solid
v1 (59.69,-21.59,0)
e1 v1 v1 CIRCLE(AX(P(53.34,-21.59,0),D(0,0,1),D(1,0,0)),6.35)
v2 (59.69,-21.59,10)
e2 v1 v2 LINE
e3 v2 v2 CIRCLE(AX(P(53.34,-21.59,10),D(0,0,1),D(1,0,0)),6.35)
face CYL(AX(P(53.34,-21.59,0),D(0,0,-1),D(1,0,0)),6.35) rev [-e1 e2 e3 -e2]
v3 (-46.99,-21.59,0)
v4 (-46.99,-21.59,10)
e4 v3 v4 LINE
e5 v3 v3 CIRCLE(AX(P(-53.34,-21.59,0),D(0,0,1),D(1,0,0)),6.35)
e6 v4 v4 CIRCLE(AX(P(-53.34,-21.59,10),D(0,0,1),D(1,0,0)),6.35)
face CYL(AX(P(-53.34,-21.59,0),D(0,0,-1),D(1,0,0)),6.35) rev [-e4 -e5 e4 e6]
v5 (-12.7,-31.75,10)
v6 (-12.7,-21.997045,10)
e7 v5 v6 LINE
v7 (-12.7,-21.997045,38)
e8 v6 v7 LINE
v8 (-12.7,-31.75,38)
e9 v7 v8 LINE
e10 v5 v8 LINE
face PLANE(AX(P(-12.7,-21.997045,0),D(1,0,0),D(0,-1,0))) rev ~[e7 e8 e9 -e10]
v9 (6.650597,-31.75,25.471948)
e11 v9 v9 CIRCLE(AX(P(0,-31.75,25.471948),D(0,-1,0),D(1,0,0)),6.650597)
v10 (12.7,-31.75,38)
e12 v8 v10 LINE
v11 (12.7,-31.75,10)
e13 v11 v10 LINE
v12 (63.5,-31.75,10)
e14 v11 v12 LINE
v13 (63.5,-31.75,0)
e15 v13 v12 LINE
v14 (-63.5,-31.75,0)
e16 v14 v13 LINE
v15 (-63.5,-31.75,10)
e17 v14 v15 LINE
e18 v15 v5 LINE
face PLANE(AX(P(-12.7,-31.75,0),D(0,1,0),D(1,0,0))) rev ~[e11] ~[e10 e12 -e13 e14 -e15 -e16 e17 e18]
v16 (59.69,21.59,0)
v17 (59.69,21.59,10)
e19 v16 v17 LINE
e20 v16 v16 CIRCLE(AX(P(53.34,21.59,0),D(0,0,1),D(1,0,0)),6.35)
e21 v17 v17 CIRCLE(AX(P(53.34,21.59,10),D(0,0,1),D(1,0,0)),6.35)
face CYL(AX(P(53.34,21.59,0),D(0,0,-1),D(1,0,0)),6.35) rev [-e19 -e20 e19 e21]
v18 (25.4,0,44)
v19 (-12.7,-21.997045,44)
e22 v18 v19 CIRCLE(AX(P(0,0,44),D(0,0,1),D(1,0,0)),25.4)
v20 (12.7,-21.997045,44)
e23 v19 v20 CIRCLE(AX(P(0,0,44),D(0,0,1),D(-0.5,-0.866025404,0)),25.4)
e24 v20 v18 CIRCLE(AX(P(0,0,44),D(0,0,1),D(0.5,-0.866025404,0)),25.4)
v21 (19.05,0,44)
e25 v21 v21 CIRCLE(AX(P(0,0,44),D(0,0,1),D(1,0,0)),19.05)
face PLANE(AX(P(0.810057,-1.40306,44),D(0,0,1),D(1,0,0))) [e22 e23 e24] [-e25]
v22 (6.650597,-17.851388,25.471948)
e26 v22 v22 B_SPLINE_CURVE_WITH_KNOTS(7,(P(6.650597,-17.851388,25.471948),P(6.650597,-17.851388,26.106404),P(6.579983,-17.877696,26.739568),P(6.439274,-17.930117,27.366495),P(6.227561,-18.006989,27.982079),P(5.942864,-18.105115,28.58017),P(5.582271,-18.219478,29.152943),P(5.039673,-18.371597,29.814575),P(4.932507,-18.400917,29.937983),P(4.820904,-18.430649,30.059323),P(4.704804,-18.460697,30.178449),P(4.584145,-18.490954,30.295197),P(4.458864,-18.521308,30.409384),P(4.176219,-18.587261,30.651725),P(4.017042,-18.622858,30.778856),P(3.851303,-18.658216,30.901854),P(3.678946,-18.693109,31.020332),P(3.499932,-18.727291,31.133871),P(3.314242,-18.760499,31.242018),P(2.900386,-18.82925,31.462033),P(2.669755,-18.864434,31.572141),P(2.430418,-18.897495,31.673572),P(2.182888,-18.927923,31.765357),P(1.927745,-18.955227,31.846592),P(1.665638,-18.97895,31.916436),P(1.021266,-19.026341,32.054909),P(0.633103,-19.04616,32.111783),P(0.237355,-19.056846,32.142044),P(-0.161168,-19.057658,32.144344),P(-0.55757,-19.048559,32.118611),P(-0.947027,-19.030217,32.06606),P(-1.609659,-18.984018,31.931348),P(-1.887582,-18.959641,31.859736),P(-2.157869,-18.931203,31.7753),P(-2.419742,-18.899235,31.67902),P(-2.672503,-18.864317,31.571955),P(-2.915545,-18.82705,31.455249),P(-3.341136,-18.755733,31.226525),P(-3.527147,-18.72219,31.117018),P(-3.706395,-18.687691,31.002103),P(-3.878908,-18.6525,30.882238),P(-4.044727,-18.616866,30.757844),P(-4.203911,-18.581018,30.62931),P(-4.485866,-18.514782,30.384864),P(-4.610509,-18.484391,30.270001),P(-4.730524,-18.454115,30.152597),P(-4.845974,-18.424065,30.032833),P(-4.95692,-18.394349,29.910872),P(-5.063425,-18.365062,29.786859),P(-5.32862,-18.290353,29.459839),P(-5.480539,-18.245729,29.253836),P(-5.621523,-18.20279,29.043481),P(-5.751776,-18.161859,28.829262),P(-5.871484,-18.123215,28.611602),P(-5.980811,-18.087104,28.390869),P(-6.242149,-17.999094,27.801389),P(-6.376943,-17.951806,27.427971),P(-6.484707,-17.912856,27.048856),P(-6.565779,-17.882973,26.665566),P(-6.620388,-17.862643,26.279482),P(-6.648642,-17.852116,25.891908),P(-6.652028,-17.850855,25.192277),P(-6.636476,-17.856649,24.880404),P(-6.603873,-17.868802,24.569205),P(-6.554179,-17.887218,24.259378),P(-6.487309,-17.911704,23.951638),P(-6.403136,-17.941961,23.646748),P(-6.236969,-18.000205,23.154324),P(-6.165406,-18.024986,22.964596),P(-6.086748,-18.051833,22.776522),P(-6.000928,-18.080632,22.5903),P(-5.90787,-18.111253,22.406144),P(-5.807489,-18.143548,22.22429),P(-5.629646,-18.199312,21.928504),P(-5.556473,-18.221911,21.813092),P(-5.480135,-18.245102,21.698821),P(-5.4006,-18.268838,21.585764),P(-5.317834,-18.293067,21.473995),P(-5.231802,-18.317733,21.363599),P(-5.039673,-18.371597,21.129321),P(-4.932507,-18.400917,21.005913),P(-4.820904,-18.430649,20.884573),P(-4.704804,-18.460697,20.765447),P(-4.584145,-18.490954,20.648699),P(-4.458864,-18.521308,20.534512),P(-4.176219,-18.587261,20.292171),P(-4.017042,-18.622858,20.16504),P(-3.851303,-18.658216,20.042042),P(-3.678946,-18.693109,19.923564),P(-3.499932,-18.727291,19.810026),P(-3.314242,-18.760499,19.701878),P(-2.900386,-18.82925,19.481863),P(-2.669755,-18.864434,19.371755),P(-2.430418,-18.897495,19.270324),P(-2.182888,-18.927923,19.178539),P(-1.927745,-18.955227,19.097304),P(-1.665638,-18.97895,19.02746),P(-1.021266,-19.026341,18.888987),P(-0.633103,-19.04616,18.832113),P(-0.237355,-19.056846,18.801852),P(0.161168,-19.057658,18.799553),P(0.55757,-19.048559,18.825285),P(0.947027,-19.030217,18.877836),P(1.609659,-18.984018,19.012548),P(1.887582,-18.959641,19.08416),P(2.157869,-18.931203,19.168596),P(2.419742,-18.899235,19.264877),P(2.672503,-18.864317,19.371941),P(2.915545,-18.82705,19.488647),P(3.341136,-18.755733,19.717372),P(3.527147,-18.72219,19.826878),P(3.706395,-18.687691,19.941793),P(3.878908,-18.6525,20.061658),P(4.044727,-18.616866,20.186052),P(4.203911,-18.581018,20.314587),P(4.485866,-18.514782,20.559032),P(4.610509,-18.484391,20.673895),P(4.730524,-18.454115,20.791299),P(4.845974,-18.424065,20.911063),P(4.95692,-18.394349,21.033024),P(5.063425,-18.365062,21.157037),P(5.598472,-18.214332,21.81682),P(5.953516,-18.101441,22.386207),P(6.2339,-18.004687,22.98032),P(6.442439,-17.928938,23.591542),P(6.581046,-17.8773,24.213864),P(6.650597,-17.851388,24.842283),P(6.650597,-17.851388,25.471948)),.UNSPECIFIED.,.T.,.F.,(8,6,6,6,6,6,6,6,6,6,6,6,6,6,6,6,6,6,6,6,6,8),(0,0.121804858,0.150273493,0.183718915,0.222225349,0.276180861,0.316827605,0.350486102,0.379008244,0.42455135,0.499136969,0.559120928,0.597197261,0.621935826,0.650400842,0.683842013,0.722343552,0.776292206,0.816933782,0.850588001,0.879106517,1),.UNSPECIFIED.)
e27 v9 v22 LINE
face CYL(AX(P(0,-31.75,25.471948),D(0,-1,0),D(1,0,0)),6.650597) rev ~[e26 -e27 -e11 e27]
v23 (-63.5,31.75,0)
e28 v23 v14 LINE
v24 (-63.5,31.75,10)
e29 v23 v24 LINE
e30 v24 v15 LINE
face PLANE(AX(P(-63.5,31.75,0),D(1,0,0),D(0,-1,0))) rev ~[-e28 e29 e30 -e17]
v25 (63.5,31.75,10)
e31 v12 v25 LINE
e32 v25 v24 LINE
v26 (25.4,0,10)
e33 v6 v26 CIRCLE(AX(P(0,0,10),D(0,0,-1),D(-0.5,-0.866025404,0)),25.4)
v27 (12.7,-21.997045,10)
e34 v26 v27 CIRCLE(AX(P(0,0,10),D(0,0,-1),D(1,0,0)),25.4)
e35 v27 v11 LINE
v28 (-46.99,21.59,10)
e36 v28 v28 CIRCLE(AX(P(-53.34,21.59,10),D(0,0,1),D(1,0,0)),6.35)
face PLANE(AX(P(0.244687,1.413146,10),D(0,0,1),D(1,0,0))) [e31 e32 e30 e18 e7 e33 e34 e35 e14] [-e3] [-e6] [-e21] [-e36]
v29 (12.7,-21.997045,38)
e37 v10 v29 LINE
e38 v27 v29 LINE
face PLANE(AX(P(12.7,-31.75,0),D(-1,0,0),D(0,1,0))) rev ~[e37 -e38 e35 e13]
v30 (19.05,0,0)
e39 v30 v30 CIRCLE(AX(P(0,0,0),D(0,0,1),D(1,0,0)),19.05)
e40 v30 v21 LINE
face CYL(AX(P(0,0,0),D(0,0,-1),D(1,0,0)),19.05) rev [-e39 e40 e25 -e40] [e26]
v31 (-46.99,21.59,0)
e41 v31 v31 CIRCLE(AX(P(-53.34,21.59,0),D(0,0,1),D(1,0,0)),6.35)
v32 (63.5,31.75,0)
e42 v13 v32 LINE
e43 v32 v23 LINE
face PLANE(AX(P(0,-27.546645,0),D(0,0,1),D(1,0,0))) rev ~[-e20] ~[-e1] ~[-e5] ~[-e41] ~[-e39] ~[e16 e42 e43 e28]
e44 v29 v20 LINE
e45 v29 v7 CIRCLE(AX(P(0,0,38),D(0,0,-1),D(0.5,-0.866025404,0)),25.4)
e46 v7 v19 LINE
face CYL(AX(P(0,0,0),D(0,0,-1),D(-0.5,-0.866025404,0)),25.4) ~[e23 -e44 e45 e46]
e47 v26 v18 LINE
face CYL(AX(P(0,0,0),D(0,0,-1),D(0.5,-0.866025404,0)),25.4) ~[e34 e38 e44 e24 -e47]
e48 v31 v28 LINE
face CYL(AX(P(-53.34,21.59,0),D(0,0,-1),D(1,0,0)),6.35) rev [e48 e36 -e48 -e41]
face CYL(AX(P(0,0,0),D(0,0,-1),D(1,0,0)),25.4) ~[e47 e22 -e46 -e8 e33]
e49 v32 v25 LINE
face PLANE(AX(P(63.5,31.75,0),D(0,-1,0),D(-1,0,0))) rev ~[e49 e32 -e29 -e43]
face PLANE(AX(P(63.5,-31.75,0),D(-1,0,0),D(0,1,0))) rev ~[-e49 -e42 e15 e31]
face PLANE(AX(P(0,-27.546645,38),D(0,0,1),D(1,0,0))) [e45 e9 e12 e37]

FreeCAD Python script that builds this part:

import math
import FreeCAD as App
import Part
import Sketcher
from FreeCAD import Vector
Q = App.Units.Quantity

doc = App.newDocument("Part")
params = doc.addObject("Spreadsheet::Sheet", "Params")
for row, (alias, value) in enumerate([
    ("sketch1_radius", "1 in"),
    ("sketch1_diameter", "0.5 in"),
    ("sketch1_width", "5 in"),
    ("sketch1_width2", "2 in"),
    ("sketch1_height", "2.5 in"),
    ("pad1_length", "10 mm"),
    ("sketch2_radius", "1 in"),
    ("sketch2_diameter", "1.5 in"),
    ("pad2_length", "44 mm"),
    ("sketch3_radius", "1 in"),
    ("sketch3_width", "1 in"),
    ("pad3_length", "38 mm"),
    ("pocket1_length", "14.898612 mm"),
], start=1):
    params.set(f"A{row}", alias)
    params.set(f"B{row}", "=" + value)
    params.setAlias(f"B{row}", alias)

body = doc.addObject("PartDesign::Body", "Body")

sketch1 = body.newObject("Sketcher::SketchObject", "Sketch")
sketch1.AttachmentSupport = (doc.getObject("XY_Plane"), [""])
sketch1.MapMode = "FlatFace"
sketch1.addGeometry(Part.LineSegment(Vector(63.5, 31.75, 0), Vector(-63.5, 31.75, 0)), False)
sketch1.addGeometry(Part.LineSegment(Vector(-63.5, 31.75, 0), Vector(-63.5, -31.75, 0)), False)
sketch1.addGeometry(Part.LineSegment(Vector(-63.5, -31.75, 0), Vector(-12.7, -31.75, 0)), False)
sketch1.addGeometry(Part.LineSegment(Vector(-12.7, -31.75, 0), Vector(-12.7, -21.997045, 0)), False)
sketch1.addGeometry(Part.ArcOfCircle(Part.Circle(Vector(0, 0, 0), Vector(0, 0, 1), 25.4), math.radians(0), math.radians(240)), False)
sketch1.addGeometry(Part.ArcOfCircle(Part.Circle(Vector(0, 0, 0), Vector(0, 0, 1), 25.4), math.radians(-60), math.radians(0)), False)
sketch1.addGeometry(Part.LineSegment(Vector(12.7, -21.997045, 0), Vector(12.7, -31.75, 0)), False)
sketch1.addGeometry(Part.LineSegment(Vector(12.7, -31.75, 0), Vector(63.5, -31.75, 0)), False)
sketch1.addGeometry(Part.LineSegment(Vector(63.5, -31.75, 0), Vector(63.5, 31.75, 0)), False)
sketch1.addGeometry(Part.Circle(Vector(-53.34, -21.59, 0), Vector(0, 0, 1), 6.35), False)
sketch1.addGeometry(Part.Circle(Vector(53.34, -21.59, 0), Vector(0, 0, 1), 6.35), False)
sketch1.addGeometry(Part.Circle(Vector(-53.34, 21.59, 0), Vector(0, 0, 1), 6.35), False)
sketch1.addGeometry(Part.Circle(Vector(53.34, 21.59, 0), Vector(0, 0, 1), 6.35), False)
sketch1.addConstraint(Sketcher.Constraint("Coincident", 0, 2, 1, 1))
sketch1.addConstraint(Sketcher.Constraint("Coincident", 1, 2, 2, 1))
sketch1.addConstraint(Sketcher.Constraint("Coincident", 2, 2, 3, 1))
sketch1.addConstraint(Sketcher.Constraint("Coincident", 3, 2, 4, 2))
sketch1.addConstraint(Sketcher.Constraint("Tangent", 4, 1, 5, 2))
sketch1.addConstraint(Sketcher.Constraint("Coincident", 5, 1, 6, 1))
sketch1.addConstraint(Sketcher.Constraint("Coincident", 6, 2, 7, 1))
sketch1.addConstraint(Sketcher.Constraint("Coincident", 7, 2, 8, 1))
sketch1.addConstraint(Sketcher.Constraint("Coincident", 8, 2, 0, 1))
sketch1.addConstraint(Sketcher.Constraint("Horizontal", 0))
sketch1.addConstraint(Sketcher.Constraint("Vertical", 1))
sketch1.addConstraint(Sketcher.Constraint("Horizontal", 2))
sketch1.addConstraint(Sketcher.Constraint("Vertical", 3))
sketch1.addConstraint(Sketcher.Constraint("Vertical", 6))
sketch1.addConstraint(Sketcher.Constraint("Horizontal", 7))
sketch1.addConstraint(Sketcher.Constraint("Vertical", 8))
sketch1.addConstraint(Sketcher.Constraint("Coincident", 4, 3, -1, 1))
sketch1.addConstraint(Sketcher.Constraint("Equal", 4, 5))
sketch1.addConstraint(Sketcher.Constraint("Equal", 9, 10))
sketch1.addConstraint(Sketcher.Constraint("Equal", 10, 11))
sketch1.addConstraint(Sketcher.Constraint("Equal", 11, 12))
sketch1.addConstraint(Sketcher.Constraint("Symmetric", 10, 3, 11, 3, -1, 1))
sketch1.addConstraint(Sketcher.Constraint("Symmetric", 9, 3, 12, 3, -1, 1))
sketch1.addConstraint(Sketcher.Constraint("Symmetric", 0, 2, 7, 2, -1, 1))
sketch1.addConstraint(Sketcher.Constraint("Symmetric", 9, 3, 10, 3, -2))
sketch1.addConstraint(Sketcher.Constraint("Symmetric", 2, 2, 6, 2, -2))
sketch1.addConstraint(Sketcher.Constraint("PointOnObject", 4, 1, -1))
sketch1.addConstraint(Sketcher.Constraint("Radius", 4, Q("1 in")))
sketch1.addConstraint(Sketcher.Constraint("Diameter", 9, Q("0.5 in")))
sketch1.addConstraint(Sketcher.Constraint("DistanceX", 0, 2, 0, 1, Q("5 in")))
sketch1.addConstraint(Sketcher.Constraint("DistanceX", 2, 1, 2, 2, Q("2 in")))
sketch1.addConstraint(Sketcher.Constraint("DistanceY", 1, 2, 1, 1, Q("2.5 in")))
sketch1.addConstraint(Sketcher.Constraint("DistanceX", 9, 3, -1, 1, Q("2.1 in")))
sketch1.addConstraint(Sketcher.Constraint("DistanceY", 9, 3, 11, 3, Q("1.7 in")))
sketch1.setExpression("Constraints[27]", "Params.sketch1_radius")
sketch1.setExpression("Constraints[28]", "Params.sketch1_diameter")
sketch1.setExpression("Constraints[29]", "Params.sketch1_width")
sketch1.setExpression("Constraints[30]", "Params.sketch1_width2")
sketch1.setExpression("Constraints[31]", "Params.sketch1_height")
pad1 = body.newObject("PartDesign::Pad", "Pad")
pad1.Profile = sketch1
pad1.setExpression("Length", "Params.pad1_length")

sketch2 = body.newObject("Sketcher::SketchObject", "Sketch001")
sketch2.AttachmentSupport = (doc.getObject("XY_Plane"), [""])
sketch2.MapMode = "FlatFace"
sketch2.addGeometry(Part.ArcOfCircle(Part.Circle(Vector(0, 0, 0), Vector(0, 0, 1), 25.4), math.radians(0), math.radians(240)), False)
sketch2.addGeometry(Part.ArcOfCircle(Part.Circle(Vector(0, 0, 0), Vector(0, 0, 1), 25.4), math.radians(-120), math.radians(-60)), False)
sketch2.addGeometry(Part.ArcOfCircle(Part.Circle(Vector(0, 0, 0), Vector(0, 0, 1), 25.4), math.radians(-60), math.radians(0)), False)
sketch2.addGeometry(Part.Circle(Vector(0, 0, 0), Vector(0, 0, 1), 19.05), False)
sketch2.addConstraint(Sketcher.Constraint("Tangent", 0, 2, 1, 1))
sketch2.addConstraint(Sketcher.Constraint("Tangent", 1, 2, 2, 1))
sketch2.addConstraint(Sketcher.Constraint("Tangent", 2, 2, 0, 1))
sketch2.addConstraint(Sketcher.Constraint("Coincident", 0, 3, -1, 1))
sketch2.addConstraint(Sketcher.Constraint("Coincident", 3, 3, -1, 1))
sketch2.addConstraint(Sketcher.Constraint("PointOnObject", 2, 2, -1))
sketch2.addConstraint(Sketcher.Constraint("Horizontal", 0, 2, 1, 2))
sketch2.addConstraint(Sketcher.Constraint("Radius", 0, Q("1 in")))
sketch2.addConstraint(Sketcher.Constraint("Diameter", 3, Q("1.5 in")))
sketch2.addConstraint(Sketcher.Constraint("DistanceX", 0, 2, 1, 2, Q("1 in")))
sketch2.setExpression("Constraints[7]", "Params.sketch2_radius")
sketch2.setExpression("Constraints[8]", "Params.sketch2_diameter")
pad2 = body.newObject("PartDesign::Pad", "Pad001")
pad2.Profile = sketch2
pad2.setExpression("Length", "Params.pad2_length")

sketch3 = body.newObject("Sketcher::SketchObject", "Sketch002")
sketch3.AttachmentSupport = (doc.getObject("XY_Plane"), [""])
sketch3.MapMode = "FlatFace"
sketch3.addGeometry(Part.LineSegment(Vector(-12.7, -21.997045, 0), Vector(-12.7, -31.75, 0)), False)
sketch3.addGeometry(Part.LineSegment(Vector(-12.7, -31.75, 0), Vector(12.7, -31.75, 0)), False)
sketch3.addGeometry(Part.LineSegment(Vector(12.7, -31.75, 0), Vector(12.7, -21.997045, 0)), False)
sketch3.addGeometry(Part.ArcOfCircle(Part.Circle(Vector(0, 0, 0), Vector(0, 0, 1), 25.4), math.radians(-120), math.radians(-60)), False)
sketch3.addConstraint(Sketcher.Constraint("Coincident", 0, 2, 1, 1))
sketch3.addConstraint(Sketcher.Constraint("Coincident", 1, 2, 2, 1))
sketch3.addConstraint(Sketcher.Constraint("Coincident", 2, 2, 3, 2))
sketch3.addConstraint(Sketcher.Constraint("Coincident", 3, 1, 0, 1))
sketch3.addConstraint(Sketcher.Constraint("Vertical", 0))
sketch3.addConstraint(Sketcher.Constraint("Horizontal", 1))
sketch3.addConstraint(Sketcher.Constraint("Vertical", 2))
sketch3.addConstraint(Sketcher.Constraint("Coincident", 3, 3, -1, 1))
sketch3.addConstraint(Sketcher.Constraint("Horizontal", 2, 2, 3, 1))
sketch3.addConstraint(Sketcher.Constraint("Radius", 3, Q("1 in")))
sketch3.addConstraint(Sketcher.Constraint("DistanceX", 1, 1, 1, 2, Q("1 in")))
sketch3.addConstraint(Sketcher.Constraint("DistanceY", 0, 2, -1, 1, Q("1.25 in")))
sketch3.setExpression("Constraints[9]", "Params.sketch3_radius")
sketch3.setExpression("Constraints[10]", "Params.sketch3_width")
pad3 = body.newObject("PartDesign::Pad", "Pad002")
pad3.Profile = sketch3
pad3.setExpression("Length", "Params.pad3_length")

sketch4 = body.newObject("Sketcher::SketchObject", "Sketch003")
sketch4.AttachmentSupport = (doc.getObject("XZ_Plane"), [""])
sketch4.MapMode = "FlatFace"
sketch4.AttachmentOffset = App.Placement(Vector(0, 0, 1.25 * 25.4), App.Rotation())
sketch4.addGeometry(Part.Circle(Vector(0, 25.471948, 0), Vector(0, 0, 1), 6.650597), False)
sketch4.addConstraint(Sketcher.Constraint("PointOnObject", 0, 3, -2))
sketch4.addConstraint(Sketcher.Constraint("Diameter", 0, 13.301194))
sketch4.addConstraint(Sketcher.Constraint("DistanceY", -1, 1, 0, 3, 25.471948))
pocket1 = body.newObject("PartDesign::Pocket", "Pocket")
pocket1.Profile = sketch4
pocket1.setExpression("Length", "Params.pocket1_length")

doc.recompute()
